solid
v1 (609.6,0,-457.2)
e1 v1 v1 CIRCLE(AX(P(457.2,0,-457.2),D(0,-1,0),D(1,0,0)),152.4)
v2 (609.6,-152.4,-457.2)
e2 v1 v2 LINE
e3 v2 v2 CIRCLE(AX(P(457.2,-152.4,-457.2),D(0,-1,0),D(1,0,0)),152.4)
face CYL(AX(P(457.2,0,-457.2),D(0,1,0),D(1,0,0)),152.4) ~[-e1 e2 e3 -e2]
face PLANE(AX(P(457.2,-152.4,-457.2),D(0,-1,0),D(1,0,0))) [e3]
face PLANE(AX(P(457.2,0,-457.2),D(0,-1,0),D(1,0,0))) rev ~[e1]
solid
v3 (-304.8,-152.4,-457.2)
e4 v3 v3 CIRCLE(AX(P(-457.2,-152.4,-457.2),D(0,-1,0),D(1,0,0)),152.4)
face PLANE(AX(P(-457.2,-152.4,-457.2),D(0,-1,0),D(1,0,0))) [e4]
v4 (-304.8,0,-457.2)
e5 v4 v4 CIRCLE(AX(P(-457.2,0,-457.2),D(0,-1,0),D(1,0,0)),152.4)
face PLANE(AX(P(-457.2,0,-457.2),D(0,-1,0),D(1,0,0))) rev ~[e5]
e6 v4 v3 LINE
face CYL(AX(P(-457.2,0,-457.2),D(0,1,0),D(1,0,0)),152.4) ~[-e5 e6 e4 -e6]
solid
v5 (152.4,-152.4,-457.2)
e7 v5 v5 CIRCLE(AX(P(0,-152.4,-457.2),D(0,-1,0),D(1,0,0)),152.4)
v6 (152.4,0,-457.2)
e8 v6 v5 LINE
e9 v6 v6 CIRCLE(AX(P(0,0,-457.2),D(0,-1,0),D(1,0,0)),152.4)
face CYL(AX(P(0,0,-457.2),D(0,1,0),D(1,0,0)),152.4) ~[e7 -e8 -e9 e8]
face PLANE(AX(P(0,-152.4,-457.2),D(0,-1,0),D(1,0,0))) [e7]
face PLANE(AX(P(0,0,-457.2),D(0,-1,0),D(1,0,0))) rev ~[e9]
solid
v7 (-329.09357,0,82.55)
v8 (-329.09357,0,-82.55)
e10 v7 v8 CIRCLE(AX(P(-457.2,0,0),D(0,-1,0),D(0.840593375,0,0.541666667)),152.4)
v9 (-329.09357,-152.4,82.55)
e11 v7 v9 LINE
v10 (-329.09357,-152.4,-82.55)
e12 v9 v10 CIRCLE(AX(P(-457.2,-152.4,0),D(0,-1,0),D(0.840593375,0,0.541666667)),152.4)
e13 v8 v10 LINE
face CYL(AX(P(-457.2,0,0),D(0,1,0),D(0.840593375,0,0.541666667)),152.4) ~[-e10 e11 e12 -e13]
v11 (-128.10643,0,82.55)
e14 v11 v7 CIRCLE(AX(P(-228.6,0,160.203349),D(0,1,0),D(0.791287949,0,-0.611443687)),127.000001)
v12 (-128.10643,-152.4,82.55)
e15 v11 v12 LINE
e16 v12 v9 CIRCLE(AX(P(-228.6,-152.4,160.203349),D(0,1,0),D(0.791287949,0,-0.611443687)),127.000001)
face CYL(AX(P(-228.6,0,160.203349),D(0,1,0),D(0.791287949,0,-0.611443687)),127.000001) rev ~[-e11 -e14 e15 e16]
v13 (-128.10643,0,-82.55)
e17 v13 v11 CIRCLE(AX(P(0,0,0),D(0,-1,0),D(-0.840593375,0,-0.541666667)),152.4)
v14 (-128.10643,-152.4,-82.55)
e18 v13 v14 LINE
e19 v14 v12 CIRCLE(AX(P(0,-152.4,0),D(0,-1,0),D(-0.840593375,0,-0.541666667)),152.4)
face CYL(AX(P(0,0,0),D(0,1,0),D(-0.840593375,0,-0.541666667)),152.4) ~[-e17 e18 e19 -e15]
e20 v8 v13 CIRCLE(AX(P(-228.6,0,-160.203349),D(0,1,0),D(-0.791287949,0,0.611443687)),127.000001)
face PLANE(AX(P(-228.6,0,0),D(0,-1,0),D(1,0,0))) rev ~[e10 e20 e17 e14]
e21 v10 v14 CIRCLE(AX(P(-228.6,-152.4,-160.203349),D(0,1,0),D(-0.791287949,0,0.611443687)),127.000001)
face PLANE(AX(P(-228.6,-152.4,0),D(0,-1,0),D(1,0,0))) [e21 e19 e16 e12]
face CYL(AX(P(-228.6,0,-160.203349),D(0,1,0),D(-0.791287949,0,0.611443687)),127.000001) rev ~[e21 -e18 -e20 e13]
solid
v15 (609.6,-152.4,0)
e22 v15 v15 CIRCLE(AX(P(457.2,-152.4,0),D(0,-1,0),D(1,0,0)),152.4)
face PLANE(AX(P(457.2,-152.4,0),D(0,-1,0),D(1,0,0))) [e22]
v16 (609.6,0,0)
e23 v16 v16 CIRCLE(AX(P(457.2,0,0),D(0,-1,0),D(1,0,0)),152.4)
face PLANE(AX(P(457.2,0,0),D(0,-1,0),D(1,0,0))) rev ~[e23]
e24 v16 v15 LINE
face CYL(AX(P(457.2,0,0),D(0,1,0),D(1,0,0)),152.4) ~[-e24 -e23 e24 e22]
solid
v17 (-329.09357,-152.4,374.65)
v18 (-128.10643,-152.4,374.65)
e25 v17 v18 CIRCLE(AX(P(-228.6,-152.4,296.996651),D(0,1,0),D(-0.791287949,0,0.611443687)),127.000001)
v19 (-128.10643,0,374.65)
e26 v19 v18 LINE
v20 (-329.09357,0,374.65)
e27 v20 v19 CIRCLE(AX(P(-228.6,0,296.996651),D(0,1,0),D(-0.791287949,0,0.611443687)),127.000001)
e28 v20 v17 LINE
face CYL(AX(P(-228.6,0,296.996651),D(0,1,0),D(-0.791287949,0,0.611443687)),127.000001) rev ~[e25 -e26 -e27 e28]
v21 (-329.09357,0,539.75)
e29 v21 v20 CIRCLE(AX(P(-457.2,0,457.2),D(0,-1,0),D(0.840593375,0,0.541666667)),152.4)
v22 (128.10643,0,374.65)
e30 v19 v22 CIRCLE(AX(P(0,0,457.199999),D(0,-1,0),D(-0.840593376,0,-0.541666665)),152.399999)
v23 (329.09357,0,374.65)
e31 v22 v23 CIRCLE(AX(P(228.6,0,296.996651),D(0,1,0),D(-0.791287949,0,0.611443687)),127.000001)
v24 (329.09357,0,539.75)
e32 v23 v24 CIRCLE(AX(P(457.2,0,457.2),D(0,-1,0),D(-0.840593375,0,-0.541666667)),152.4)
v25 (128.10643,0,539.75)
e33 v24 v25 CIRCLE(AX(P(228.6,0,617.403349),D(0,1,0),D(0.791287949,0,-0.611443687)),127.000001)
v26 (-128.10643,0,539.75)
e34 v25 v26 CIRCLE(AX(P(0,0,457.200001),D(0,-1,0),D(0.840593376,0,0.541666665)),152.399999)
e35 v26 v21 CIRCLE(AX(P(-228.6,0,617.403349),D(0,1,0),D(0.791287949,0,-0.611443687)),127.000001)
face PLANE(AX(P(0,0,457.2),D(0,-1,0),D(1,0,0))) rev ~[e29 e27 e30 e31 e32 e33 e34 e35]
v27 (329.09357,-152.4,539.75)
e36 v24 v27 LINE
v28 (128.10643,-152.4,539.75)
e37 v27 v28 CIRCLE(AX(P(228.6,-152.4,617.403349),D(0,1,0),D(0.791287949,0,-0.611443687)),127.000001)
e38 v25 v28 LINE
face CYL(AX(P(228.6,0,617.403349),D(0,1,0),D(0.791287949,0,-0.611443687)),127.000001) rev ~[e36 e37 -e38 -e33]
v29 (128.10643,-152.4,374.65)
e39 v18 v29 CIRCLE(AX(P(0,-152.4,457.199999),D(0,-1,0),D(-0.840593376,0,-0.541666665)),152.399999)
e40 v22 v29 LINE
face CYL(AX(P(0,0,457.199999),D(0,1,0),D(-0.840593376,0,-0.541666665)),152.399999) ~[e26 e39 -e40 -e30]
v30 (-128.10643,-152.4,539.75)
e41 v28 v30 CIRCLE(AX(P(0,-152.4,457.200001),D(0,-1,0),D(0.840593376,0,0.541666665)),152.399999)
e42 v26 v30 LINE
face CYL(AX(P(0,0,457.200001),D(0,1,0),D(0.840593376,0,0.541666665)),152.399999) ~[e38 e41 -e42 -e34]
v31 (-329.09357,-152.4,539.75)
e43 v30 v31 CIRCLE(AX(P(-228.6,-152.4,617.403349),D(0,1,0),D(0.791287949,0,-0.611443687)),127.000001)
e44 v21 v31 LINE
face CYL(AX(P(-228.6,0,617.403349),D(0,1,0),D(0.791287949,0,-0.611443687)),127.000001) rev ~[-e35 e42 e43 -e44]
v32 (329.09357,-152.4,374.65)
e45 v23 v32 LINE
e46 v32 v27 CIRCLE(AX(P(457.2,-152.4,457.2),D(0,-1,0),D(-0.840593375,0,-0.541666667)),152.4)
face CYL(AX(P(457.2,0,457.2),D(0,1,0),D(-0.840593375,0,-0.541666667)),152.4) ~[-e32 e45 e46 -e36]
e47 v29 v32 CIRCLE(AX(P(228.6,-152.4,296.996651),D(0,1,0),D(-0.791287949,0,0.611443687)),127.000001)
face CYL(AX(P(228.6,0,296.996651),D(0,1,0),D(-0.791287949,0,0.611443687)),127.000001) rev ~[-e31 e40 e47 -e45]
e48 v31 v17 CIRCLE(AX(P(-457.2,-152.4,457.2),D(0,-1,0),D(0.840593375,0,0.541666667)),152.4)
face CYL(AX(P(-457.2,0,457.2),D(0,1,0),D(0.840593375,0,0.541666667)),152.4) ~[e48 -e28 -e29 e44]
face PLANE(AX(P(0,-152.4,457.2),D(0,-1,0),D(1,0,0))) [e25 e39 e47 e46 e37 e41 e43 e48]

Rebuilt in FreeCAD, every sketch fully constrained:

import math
import FreeCAD as App
import Part
import Sketcher
from FreeCAD import Vector
Q = App.Units.Quantity

doc = App.newDocument("Part")
body = doc.addObject("PartDesign::Body", "Body")
body.AllowCompound = True

sketch1 = body.newObject("Sketcher::SketchObject", "Sketch")
sketch1.AttachmentSupport = (doc.getObject("XZ_Plane"), [""])
sketch1.MapMode = "FlatFace"
sketch1.addGeometry([
    Part.ArcOfCircle(Part.Circle(Vector(-228.6, 617.403349, 0), Vector(0, 0, 1), 127.000001), math.radians(-142.306036), math.radians(-37.693964)),
    Part.ArcOfCircle(Part.Circle(Vector(-457.2, 457.2, 0), Vector(0, 0, 1), 152.4), math.radians(32.797168), math.radians(327.202832)),
    Part.ArcOfCircle(Part.Circle(Vector(-228.6, 296.996651, 0), Vector(0, 0, 1), 127.000001), math.radians(37.693964), math.radians(142.306036)),
    Part.ArcOfCircle(Part.Circle(Vector(0, 457.199999, 0), Vector(0, 0, 1), 152.399999), math.radians(-147.202832), math.radians(-32.797168)),
    Part.ArcOfCircle(Part.Circle(Vector(228.6, 296.996651, 0), Vector(0, 0, 1), 127.000001), math.radians(37.693964), math.radians(142.306036)),
    Part.ArcOfCircle(Part.Circle(Vector(457.2, 457.2, 0), Vector(0, 0, 1), 152.4), math.radians(-147.202832), math.radians(147.202832)),
    Part.ArcOfCircle(Part.Circle(Vector(228.6, 617.403349, 0), Vector(0, 0, 1), 127.000001), math.radians(-142.306036), math.radians(-37.693964)),
    Part.ArcOfCircle(Part.Circle(Vector(0, 457.200001, 0), Vector(0, 0, 1), 152.399999), math.radians(32.797168), math.radians(147.202832)),
    Part.ArcOfCircle(Part.Circle(Vector(-228.6, -160.203349, 0), Vector(0, 0, 1), 127.000001), math.radians(37.693964), math.radians(142.306036)),
    Part.ArcOfCircle(Part.Circle(Vector(0, 0, 0), Vector(0, 0, 1), 152.4), math.radians(-147.202832), math.radians(147.202832)),
    Part.ArcOfCircle(Part.Circle(Vector(-228.6, 160.203349, 0), Vector(0, 0, 1), 127.000001), math.radians(-142.306036), math.radians(-37.693964)),
    Part.ArcOfCircle(Part.Circle(Vector(-457.2, 0, 0), Vector(0, 0, 1), 152.4), math.radians(32.797168), math.radians(327.202832)),
    Part.Circle(Vector(457.2, 0, 0), Vector(0, 0, 1), 152.4),
    Part.Circle(Vector(457.2, -457.2, 0), Vector(0, 0, 1), 152.4),
    Part.Circle(Vector(0, -457.2, 0), Vector(0, 0, 1), 152.4),
    Part.Circle(Vector(-457.2, -457.2, 0), Vector(0, 0, 1), 152.4),
], False)
sketch1.addConstraint([
    Sketcher.Constraint("Coincident", 0, 1, 1, 1),
    Sketcher.Constraint("Coincident", 1, 2, 2, 2),
    Sketcher.Constraint("Coincident", 2, 1, 3, 1),
    Sketcher.Constraint("Coincident", 3, 2, 4, 2),
    Sketcher.Constraint("Coincident", 4, 1, 5, 1),
    Sketcher.Constraint("Coincident", 5, 2, 6, 2),
    Sketcher.Constraint("Coincident", 6, 1, 7, 1),
    Sketcher.Constraint("Coincident", 7, 2, 0, 2),
    Sketcher.Constraint("Coincident", 8, 1, 9, 1),
    Sketcher.Constraint("Coincident", 9, 2, 10, 2),
    Sketcher.Constraint("Coincident", 10, 1, 11, 1),
    Sketcher.Constraint("Coincident", 11, 2, 8, 2),
    Sketcher.Constraint("Coincident", 9, 3, -1, 1),
    Sketcher.Constraint("Coincident", 7, 3, 3, 3),
    Sketcher.Constraint("Equal", 0, 2),
    Sketcher.Constraint("Equal", 1, 3),
    Sketcher.Constraint("Equal", 2, 4),
    Sketcher.Constraint("Equal", 3, 5),
    Sketcher.Constraint("Equal", 4, 6),
    Sketcher.Constraint("Equal", 5, 7),
    Sketcher.Constraint("Equal", 6, 8),
    Sketcher.Constraint("Equal", 7, 9),
    Sketcher.Constraint("Equal", 8, 10),
    Sketcher.Constraint("Equal", 9, 11),
    Sketcher.Constraint("Equal", 11, 12),
    Sketcher.Constraint("Equal", 12, 13),
    Sketcher.Constraint("Equal", 13, 14),
    Sketcher.Constraint("Equal", 14, 15),
    Sketcher.Constraint("Symmetric", 11, 3, 12, 3, -1, 1),
    Sketcher.Constraint("Symmetric", 1, 3, 13, 3, -1, 1),
    Sketcher.Constraint("Symmetric", 3, 3, 14, 3, -1, 1),
    Sketcher.Constraint("Symmetric", 5, 3, 15, 3, -1, 1),
    Sketcher.Constraint("Symmetric", 2, 3, 4, 3, -2),
    Sketcher.Constraint("Symmetric", 1, 3, 5, 3, -2),
    Sketcher.Constraint("Symmetric", 0, 3, 6, 3, -2),
    Sketcher.Constraint("Symmetric", 8, 3, 10, 3, -1),
    Sketcher.Constraint("PointOnObject", 3, 3, -2),
    Sketcher.Constraint("PointOnObject", 11, 3, -1),
    Sketcher.Constraint("Horizontal", 1, 3, 3, 3),
    Sketcher.Constraint("Horizontal", 1, 2, 2, 1),
    Sketcher.Constraint("Horizontal", 5, 2, 6, 1),
    Sketcher.Constraint("Horizontal", 9, 2, 10, 1),
    Sketcher.Constraint("Vertical", 2, 3, 8, 3),
    Sketcher.Constraint("Vertical", 0, 1, 1, 2),
    Sketcher.Constraint("Vertical", 7, 2, 8, 1),
    Sketcher.Constraint("Diameter", 12, Q("12 in")),
    Sketcher.Constraint("Radius", 0, Q("5 in")),
    Sketcher.Constraint("DistanceX", 0, 3, -1, 1, Q("9 in")),
    Sketcher.Constraint("DistanceY", -1, 1, 1, 3, Q("18 in")),
    Sketcher.Constraint("DistanceY", 1, 2, 0, 1, Q("6.5 in")),
])
pad1 = body.newObject("PartDesign::Pad", "Pad")
pad1.Profile = sketch1
pad1.Length = Q("6 in")

doc.recompute()
